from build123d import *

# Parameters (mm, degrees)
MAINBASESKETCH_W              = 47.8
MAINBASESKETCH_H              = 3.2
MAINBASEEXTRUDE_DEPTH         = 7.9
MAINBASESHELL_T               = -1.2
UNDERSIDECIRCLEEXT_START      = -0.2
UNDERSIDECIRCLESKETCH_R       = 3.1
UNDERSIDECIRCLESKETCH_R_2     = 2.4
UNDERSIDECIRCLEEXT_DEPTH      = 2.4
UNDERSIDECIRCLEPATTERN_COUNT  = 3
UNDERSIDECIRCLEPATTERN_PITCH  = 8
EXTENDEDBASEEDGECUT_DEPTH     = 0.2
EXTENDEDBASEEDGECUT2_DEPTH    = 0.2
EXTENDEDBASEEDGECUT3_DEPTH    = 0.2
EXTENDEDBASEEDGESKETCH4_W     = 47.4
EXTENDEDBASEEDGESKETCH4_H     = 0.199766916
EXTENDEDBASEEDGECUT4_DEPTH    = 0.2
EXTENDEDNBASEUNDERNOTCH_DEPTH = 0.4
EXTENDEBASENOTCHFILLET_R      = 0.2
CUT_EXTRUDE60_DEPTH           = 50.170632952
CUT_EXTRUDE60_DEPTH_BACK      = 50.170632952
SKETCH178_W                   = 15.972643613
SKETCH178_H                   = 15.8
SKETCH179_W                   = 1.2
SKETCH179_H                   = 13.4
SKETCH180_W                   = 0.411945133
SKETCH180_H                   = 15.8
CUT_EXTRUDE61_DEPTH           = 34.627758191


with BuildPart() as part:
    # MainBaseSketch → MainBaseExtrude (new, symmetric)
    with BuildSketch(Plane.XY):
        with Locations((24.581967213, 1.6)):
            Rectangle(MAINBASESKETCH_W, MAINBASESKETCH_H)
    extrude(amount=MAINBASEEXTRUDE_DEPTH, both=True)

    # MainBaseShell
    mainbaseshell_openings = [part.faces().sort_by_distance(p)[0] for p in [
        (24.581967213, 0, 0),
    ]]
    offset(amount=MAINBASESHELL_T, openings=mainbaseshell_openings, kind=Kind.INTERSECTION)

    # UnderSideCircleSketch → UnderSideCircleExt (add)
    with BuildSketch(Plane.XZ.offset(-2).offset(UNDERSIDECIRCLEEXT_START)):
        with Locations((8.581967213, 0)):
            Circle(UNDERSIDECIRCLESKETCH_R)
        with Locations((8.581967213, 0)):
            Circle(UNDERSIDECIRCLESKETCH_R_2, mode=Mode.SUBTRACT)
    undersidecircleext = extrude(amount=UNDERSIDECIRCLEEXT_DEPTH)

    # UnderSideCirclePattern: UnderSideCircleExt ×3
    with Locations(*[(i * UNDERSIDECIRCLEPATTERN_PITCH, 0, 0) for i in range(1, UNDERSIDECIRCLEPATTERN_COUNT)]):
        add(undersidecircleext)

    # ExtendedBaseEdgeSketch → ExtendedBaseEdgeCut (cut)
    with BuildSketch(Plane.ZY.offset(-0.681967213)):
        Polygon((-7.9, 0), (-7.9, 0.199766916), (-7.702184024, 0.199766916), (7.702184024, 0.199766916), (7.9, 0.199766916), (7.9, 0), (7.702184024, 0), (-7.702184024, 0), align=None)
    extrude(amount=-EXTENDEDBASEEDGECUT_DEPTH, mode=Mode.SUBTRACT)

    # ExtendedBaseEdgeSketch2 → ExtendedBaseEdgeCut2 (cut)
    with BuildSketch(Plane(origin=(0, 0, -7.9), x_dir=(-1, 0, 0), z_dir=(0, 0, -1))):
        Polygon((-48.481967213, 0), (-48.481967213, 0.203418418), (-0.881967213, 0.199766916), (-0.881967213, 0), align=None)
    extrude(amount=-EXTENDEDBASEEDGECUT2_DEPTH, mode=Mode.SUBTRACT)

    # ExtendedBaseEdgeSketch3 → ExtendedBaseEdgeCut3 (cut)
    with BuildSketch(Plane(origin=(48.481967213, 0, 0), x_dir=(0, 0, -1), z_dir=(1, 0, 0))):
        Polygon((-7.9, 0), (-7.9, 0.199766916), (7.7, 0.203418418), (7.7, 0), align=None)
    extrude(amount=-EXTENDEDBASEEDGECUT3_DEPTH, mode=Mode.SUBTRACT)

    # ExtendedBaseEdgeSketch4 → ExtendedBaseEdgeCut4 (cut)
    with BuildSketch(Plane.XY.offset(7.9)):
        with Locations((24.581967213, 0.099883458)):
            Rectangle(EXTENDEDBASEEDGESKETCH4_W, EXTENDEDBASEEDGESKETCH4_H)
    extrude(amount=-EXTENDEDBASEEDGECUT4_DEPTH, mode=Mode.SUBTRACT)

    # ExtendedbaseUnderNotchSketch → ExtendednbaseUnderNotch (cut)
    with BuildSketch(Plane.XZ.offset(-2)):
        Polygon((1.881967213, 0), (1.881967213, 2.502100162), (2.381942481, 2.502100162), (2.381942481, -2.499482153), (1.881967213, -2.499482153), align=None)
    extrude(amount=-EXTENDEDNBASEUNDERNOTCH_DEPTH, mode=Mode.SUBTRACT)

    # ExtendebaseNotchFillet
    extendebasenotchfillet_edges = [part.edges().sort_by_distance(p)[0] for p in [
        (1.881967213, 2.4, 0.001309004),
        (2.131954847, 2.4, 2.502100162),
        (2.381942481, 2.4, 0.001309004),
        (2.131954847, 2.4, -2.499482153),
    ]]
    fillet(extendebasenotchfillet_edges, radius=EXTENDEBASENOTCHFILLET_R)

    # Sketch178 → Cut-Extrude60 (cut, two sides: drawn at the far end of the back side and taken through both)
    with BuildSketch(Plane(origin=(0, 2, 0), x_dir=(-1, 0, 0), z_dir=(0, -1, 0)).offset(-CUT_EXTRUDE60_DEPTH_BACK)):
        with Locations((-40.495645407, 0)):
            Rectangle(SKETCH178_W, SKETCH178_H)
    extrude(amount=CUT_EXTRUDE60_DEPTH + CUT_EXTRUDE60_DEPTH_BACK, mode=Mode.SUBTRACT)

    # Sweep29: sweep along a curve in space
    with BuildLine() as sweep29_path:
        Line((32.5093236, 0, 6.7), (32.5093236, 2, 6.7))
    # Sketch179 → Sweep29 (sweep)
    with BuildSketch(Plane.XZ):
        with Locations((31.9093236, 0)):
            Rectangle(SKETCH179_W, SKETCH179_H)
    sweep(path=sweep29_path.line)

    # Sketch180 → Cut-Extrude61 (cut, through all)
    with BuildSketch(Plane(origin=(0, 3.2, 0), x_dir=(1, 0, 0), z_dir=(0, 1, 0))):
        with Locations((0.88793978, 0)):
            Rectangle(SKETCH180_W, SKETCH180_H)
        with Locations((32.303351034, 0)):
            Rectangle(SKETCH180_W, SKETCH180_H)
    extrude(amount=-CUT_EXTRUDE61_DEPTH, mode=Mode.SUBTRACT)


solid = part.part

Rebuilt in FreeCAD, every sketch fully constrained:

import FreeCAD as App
import Part
import Sketcher


def edges_at(feature, points):
    """Names of the edges that pass closest to the given points."""
    edges = feature.Shape.Edges
    near = lambda p: min(range(len(edges)), key=lambda i: edges[i].distToShape(Part.Vertex(*p))[0])
    return sorted({f"Edge{near(p) + 1}" for p in points})


def faces_at(feature, points):
    """Names of the faces that lie closest to the given points."""
    faces = feature.Shape.Faces
    near = lambda p: min(range(len(faces)), key=lambda i: faces[i].distToShape(Part.Vertex(*p))[0])
    return sorted({f"Face{near(p) + 1}" for p in points})


def add_polygon(sketch, points):
    """Adds a closed chain of lines whose ends are joined by coincident constraints."""
    first, n = sketch.GeometryCount, len(points)
    for a, b in zip(points, points[1:] + points[:1]):
        sketch.addGeometry(Part.LineSegment(App.Vector(*a, 0), App.Vector(*b, 0)), False)
    for i in range(n):
        sketch.addConstraint(Sketcher.Constraint("Coincident", first + i, 2, first + (i + 1) % n, 1))

doc = App.newDocument("Part")
body = doc.addObject("PartDesign::Body", "Body")

# Sketch on XY plane
sketch1 = body.newObject("Sketcher::SketchObject", "Sketch")
sketch1.AttachmentSupport = (doc.getObject("XY_Plane"), [""])
sketch1.MapMode = "FlatFace"
add_polygon(sketch1, [(0.7, 3.2), (0.7, 0), (48.5, 0), (48.5, 3.2)])  # lines 0-3
sketch1.addConstraint([
    Sketcher.Constraint("Vertical", 0),
    Sketcher.Constraint("Horizontal", 1),
    Sketcher.Constraint("Vertical", 2),
    Sketcher.Constraint("Horizontal", 3),
    Sketcher.Constraint("PointOnObject", 0, 2, -1),
    Sketcher.Constraint("DistanceX", 1, 1, 1, 2, 47.8),
    Sketcher.Constraint("DistanceY", 0, 2, 0, 1, 3.2),
    Sketcher.Constraint("DistanceX", -1, 1, 0, 2, 0.681967),
])
pad1 = body.newObject("PartDesign::Pad", "Pad")
pad1.Profile = sketch1
pad1.Length = 15.8
pad1.Midplane = True
doc.recompute()

thickness = body.newObject("PartDesign::Thickness", "Thickness")
thickness.Base = (pad1, faces_at(pad1, [(24.582, 0, 0)]))
thickness.Value = 1.2
thickness.Reversed = True
thickness.Join = "Intersection"

# Sketch on XZ plane
sketch2 = body.newObject("Sketcher::SketchObject", "Sketch001")
sketch2.AttachmentSupport = (doc.getObject("XZ_Plane"), [""])
sketch2.MapMode = "FlatFace"
sketch2.AttachmentOffset = App.Placement(App.Vector(0, 0, -2.2), App.Rotation())
sketch2.addGeometry([
    Part.Circle(App.Vector(8.6, 0, 0), App.Vector(0, 0, 1), 3.1),
    Part.Circle(App.Vector(8.6, 0, 0), App.Vector(0, 0, 1), 2.4),
], False)
sketch2.addConstraint([
    Sketcher.Constraint("Coincident", 1, 3, 0, 3),
    Sketcher.Constraint("PointOnObject", 0, 3, -1),
    Sketcher.Constraint("Diameter", 0, 6.2),
    Sketcher.Constraint("Diameter", 1, 4.8),
    Sketcher.Constraint("DistanceX", -1, 1, 0, 3, 8.581967),
])
pad2 = body.newObject("PartDesign::Pad", "Pad001")
pad2.Profile = sketch2
pad2.Length = 2.4
doc.recompute()

linearpattern = body.newObject("PartDesign::LinearPattern", "LinearPattern")
linearpattern.Originals = [pad2]
linearpattern.Direction = (doc.getObject("X_Axis"), [""])
linearpattern.Mode = "offset"
linearpattern.Offset = 8
linearpattern.Occurrences = 3
body.Tip = linearpattern

# Sketch on YZ plane
sketch3 = body.newObject("Sketcher::SketchObject", "Sketch002")
sketch3.AttachmentSupport = (doc.getObject("YZ_Plane"), [""])
sketch3.MapMode = "FlatFace"
sketch3.AttachmentOffset = App.Placement(App.Vector(0, 0, 0.681967), App.Rotation())
add_polygon(sketch3, [(0.2, -7.9), (0, -7.9), (0, 7.9), (0.2, 7.9)])  # lines 0-3
sketch3.addConstraint([
    Sketcher.Constraint("Horizontal", 0),
    Sketcher.Constraint("Vertical", 1),
    Sketcher.Constraint("Horizontal", 2),
    Sketcher.Constraint("Vertical", 3),
    Sketcher.Constraint("Symmetric", 0, 2, 1, 2, -1, 1),
    Sketcher.Constraint("DistanceY", 1, 1, 1, 2, 15.8),
    Sketcher.Constraint("DistanceX", 0, 2, 0, 1, 0.199767),
])
pocket1 = body.newObject("PartDesign::Pocket", "Pocket")
pocket1.Profile = sketch3
pocket1.Length = 0.2
pocket1.Reversed = True

# Sketch on XY plane
sketch4 = body.newObject("Sketcher::SketchObject", "Sketch003")
sketch4.AttachmentSupport = (doc.getObject("XY_Plane"), [""])
sketch4.MapMode = "FlatFace"
sketch4.AttachmentOffset = App.Placement(App.Vector(0, 0, -7.9), App.Rotation())
add_polygon(sketch4, [(48.48, 0.2), (48.48, 0), (0.88, 0), (0.88, 0.2)])  # lines 0-3
sketch4.addConstraint([
    Sketcher.Constraint("Vertical", 0),
    Sketcher.Constraint("Horizontal", 1),
    Sketcher.Constraint("Vertical", 2),
    Sketcher.Constraint("PointOnObject", 0, 2, -1),
    Sketcher.Constraint("DistanceX", 1, 2, 1, 1, 47.6),
    Sketcher.Constraint("DistanceY", 0, 2, 0, 1, 0.203418),
    Sketcher.Constraint("DistanceY", 2, 1, 2, 2, 0.199767),
    Sketcher.Constraint("DistanceX", -1, 1, 0, 2, 48.481967),
])
pocket2 = body.newObject("PartDesign::Pocket", "Pocket001")
pocket2.Profile = sketch4
pocket2.Length = 0.2
pocket2.Reversed = True

# Sketch on YZ plane
sketch5 = body.newObject("Sketcher::SketchObject", "Sketch004")
sketch5.AttachmentSupport = (doc.getObject("YZ_Plane"), [""])
sketch5.MapMode = "FlatFace"
sketch5.AttachmentOffset = App.Placement(App.Vector(0, 0, 48.481967), App.Rotation())
add_polygon(sketch5, [(0.2, 7.9), (0, 7.9), (0, -7.7), (0.2, -7.7)])  # lines 0-3
sketch5.addConstraint([
    Sketcher.Constraint("Horizontal", 0),
    Sketcher.Constraint("Vertical", 1),
    Sketcher.Constraint("Horizontal", 2),
    Sketcher.Constraint("PointOnObject", 0, 2, -2),
    Sketcher.Constraint("DistanceY", 1, 2, 1, 1, 15.6),
    Sketcher.Constraint("DistanceY", -1, 1, 0, 2, 7.9),
    Sketcher.Constraint("DistanceX", 2, 1, 2, 2, 0.203418),
    Sketcher.Constraint("DistanceX", 0, 2, 0, 1, 0.199767),
])
pocket3 = body.newObject("PartDesign::Pocket", "Pocket002")
pocket3.Profile = sketch5
pocket3.Length = 0.2

# Sketch on XY plane
sketch6 = body.newObject("Sketcher::SketchObject", "Sketch005")
sketch6.AttachmentSupport = (doc.getObject("XY_Plane"), [""])
sketch6.MapMode = "FlatFace"
sketch6.AttachmentOffset = App.Placement(App.Vector(0, 0, 7.9), App.Rotation())
add_polygon(sketch6, [(0.88, 0.2), (0.88, 0), (48.28, 0), (48.28, 0.2)])  # lines 0-3
sketch6.addConstraint([
    Sketcher.Constraint("Vertical", 0),
    Sketcher.Constraint("Horizontal", 1),
    Sketcher.Constraint("Vertical", 2),
    Sketcher.Constraint("Horizontal", 3),
    Sketcher.Constraint("PointOnObject", 0, 2, -1),
    Sketcher.Constraint("DistanceX", 1, 1, 1, 2, 47.4),
    Sketcher.Constraint("DistanceY", 0, 2, 0, 1, 0.199767),
    Sketcher.Constraint("DistanceX", -1, 1, 0, 2, 0.881967),
])
pocket4 = body.newObject("PartDesign::Pocket", "Pocket003")
pocket4.Profile = sketch6
pocket4.Length = 0.2

# Sketch on XZ plane
sketch7 = body.newObject("Sketcher::SketchObject", "Sketch006")
sketch7.AttachmentSupport = (doc.getObject("XZ_Plane"), [""])
sketch7.MapMode = "FlatFace"
sketch7.AttachmentOffset = App.Placement(App.Vector(0, 0, -2), App.Rotation())
add_polygon(sketch7, [(1.88, 2.5), (1.88, -2.5), (2.38, -2.5), (2.38, 2.5)])  # lines 0-3
sketch7.addConstraint([
    Sketcher.Constraint("Vertical", 0),
    Sketcher.Constraint("Horizontal", 1),
    Sketcher.Constraint("Vertical", 2),
    Sketcher.Constraint("Horizontal", 3),
    Sketcher.Constraint("DistanceY", -1, 1, 2, 2, 2.5021),
    Sketcher.Constraint("DistanceX", 1, 1, 1, 2, 0.499975),
    Sketcher.Constraint("DistanceY", 0, 2, 0, 1, 5.001582),
    Sketcher.Constraint("DistanceX", -1, 1, 0, 2, 1.881967),
])
pocket5 = body.newObject("PartDesign::Pocket", "Pocket004")
pocket5.Profile = sketch7
pocket5.Length = 0.4
doc.recompute()

fillet = body.newObject("PartDesign::Fillet", "Fillet")
fillet.Base = (pocket5, edges_at(pocket5, [
    (1.882, 2.4, 0.001),
    (2.132, 2.4, 2.502),
    (2.382, 2.4, 0.001),
    (2.132, 2.4, -2.499),
]))
fillet.Radius = 0.2

# Sketch on XZ plane
sketch8 = body.newObject("Sketcher::SketchObject", "Sketch007")
sketch8.AttachmentSupport = (doc.getObject("XZ_Plane"), [""])
sketch8.MapMode = "FlatFace"
sketch8.AttachmentOffset = App.Placement(App.Vector(0, 0, -2), App.Rotation())
add_polygon(sketch8, [(48, -8), (48, 8), (33, 8), (33, -8)])  # lines 0-3
sketch8.addConstraint([
    Sketcher.Constraint("Vertical", 0),
    Sketcher.Constraint("Horizontal", 1),
    Sketcher.Constraint("Vertical", 2),
    Sketcher.Constraint("Horizontal", 3),
    Sketcher.Constraint("DistanceY", 0, 1, 0, 2, 15.8),
    Sketcher.Constraint("DistanceY", -1, 1, 0, 2, 7.9),
    Sketcher.Constraint("DistanceX", 1, 2, 1, 1, 15.972644),
    Sketcher.Constraint("DistanceX", -1, 1, 0, 2, 48.481967),
])
pocket6 = body.newObject("PartDesign::Pocket", "Pocket005")
pocket6.Profile = sketch8
pocket6.Type = "ThroughAll"
pocket6.Midplane = True

# Sketch on XZ plane
sketch9 = body.newObject("Sketcher::SketchObject", "Sketch008")
sketch9.AttachmentSupport = (doc.getObject("XZ_Plane"), [""])
sketch9.MapMode = "FlatFace"
add_polygon(sketch9, [(31.3, 6.7), (31.3, -6.7), (32.5, -6.7), (32.5, 6.7)])  # lines 0-3
sketch9.addConstraint([
    Sketcher.Constraint("Vertical", 0),
    Sketcher.Constraint("Horizontal", 1),
    Sketcher.Constraint("Vertical", 2),
    Sketcher.Constraint("Horizontal", 3),
    Sketcher.Constraint("DistanceX", 1, 1, 1, 2, 1.2),
    Sketcher.Constraint("DistanceY", 0, 2, 0, 1, 13.4),
    Sketcher.Constraint("DistanceY", 0, 2, -1, 1, 6.7),
    Sketcher.Constraint("DistanceX", -1, 1, 0, 2, 31.309324),
])

# Sketch on XY plane
sketch10 = body.newObject("Sketcher::SketchObject", "Sketch009")
sketch10.AttachmentSupport = (doc.getObject("XY_Plane"), [""])
sketch10.MapMode = "FlatFace"
sketch10.AttachmentOffset = App.Placement(App.Vector(0, 0, 6.7), App.Rotation())
sketch10.addGeometry(Part.LineSegment(App.Vector(32.5, 0, 0), App.Vector(32.5, 2, 0)), False)
sketch10.addConstraint([
    Sketcher.Constraint("Vertical", 0),
    Sketcher.Constraint("PointOnObject", 0, 1, -1),
    Sketcher.Constraint("DistanceY", 0, 1, 0, 2, 2.0),
    Sketcher.Constraint("DistanceX", -1, 1, 0, 1, 32.509324),
])
doc.recompute()

additivepipe = body.newObject("PartDesign::AdditivePipe", "AdditivePipe")
additivepipe.Profile = sketch9
additivepipe.Spine = (sketch10, ["Edge1"])

# Sketch on XZ plane
sketch11 = body.newObject("Sketcher::SketchObject", "Sketch010")
sketch11.AttachmentSupport = (doc.getObject("XZ_Plane"), [""])
sketch11.MapMode = "FlatFace"
sketch11.AttachmentOffset = App.Placement(App.Vector(0, 0, -3.2), App.Rotation())
add_polygon(sketch11, [(0.68, -7.9), (0.68, 7.9), (1.09, 7.9), (1.09, -7.9)])  # lines 0-3
add_polygon(sketch11, [(32.1, -7.9), (32.1, 7.9), (32.51, 7.9), (32.51, -7.9)])  # lines 4-7
sketch11.addConstraint([
    Sketcher.Constraint("Vertical", 0),
    Sketcher.Constraint("Horizontal", 1),
    Sketcher.Constraint("Vertical", 2),
    Sketcher.Constraint("Horizontal", 3),
    Sketcher.Constraint("Vertical", 4),
    Sketcher.Constraint("Horizontal", 5),
    Sketcher.Constraint("Vertical", 6),
    Sketcher.Constraint("Horizontal", 7),
    Sketcher.Constraint("Horizontal", 1, 2, 4, 2),
    Sketcher.Constraint("Horizontal", 3, 2, 6, 2),
    Sketcher.Constraint("Equal", 3, 5),
    Sketcher.Constraint("DistanceY", 0, 1, 0, 2, 15.8),
    Sketcher.Constraint("DistanceY", -1, 1, 0, 2, 7.9),
    Sketcher.Constraint("DistanceX", 1, 1, 1, 2, 0.411945),
    Sketcher.Constraint("DistanceX", -1, 1, 4, 2, 32.097378),
    Sketcher.Constraint("DistanceX", 0, 2, 4, 2, 31.415411),
])
pocket7 = body.newObject("PartDesign::Pocket", "Pocket006")
pocket7.Profile = sketch11
pocket7.Type = "ThroughAll"
pocket7.Reversed = True

doc.recompute()
